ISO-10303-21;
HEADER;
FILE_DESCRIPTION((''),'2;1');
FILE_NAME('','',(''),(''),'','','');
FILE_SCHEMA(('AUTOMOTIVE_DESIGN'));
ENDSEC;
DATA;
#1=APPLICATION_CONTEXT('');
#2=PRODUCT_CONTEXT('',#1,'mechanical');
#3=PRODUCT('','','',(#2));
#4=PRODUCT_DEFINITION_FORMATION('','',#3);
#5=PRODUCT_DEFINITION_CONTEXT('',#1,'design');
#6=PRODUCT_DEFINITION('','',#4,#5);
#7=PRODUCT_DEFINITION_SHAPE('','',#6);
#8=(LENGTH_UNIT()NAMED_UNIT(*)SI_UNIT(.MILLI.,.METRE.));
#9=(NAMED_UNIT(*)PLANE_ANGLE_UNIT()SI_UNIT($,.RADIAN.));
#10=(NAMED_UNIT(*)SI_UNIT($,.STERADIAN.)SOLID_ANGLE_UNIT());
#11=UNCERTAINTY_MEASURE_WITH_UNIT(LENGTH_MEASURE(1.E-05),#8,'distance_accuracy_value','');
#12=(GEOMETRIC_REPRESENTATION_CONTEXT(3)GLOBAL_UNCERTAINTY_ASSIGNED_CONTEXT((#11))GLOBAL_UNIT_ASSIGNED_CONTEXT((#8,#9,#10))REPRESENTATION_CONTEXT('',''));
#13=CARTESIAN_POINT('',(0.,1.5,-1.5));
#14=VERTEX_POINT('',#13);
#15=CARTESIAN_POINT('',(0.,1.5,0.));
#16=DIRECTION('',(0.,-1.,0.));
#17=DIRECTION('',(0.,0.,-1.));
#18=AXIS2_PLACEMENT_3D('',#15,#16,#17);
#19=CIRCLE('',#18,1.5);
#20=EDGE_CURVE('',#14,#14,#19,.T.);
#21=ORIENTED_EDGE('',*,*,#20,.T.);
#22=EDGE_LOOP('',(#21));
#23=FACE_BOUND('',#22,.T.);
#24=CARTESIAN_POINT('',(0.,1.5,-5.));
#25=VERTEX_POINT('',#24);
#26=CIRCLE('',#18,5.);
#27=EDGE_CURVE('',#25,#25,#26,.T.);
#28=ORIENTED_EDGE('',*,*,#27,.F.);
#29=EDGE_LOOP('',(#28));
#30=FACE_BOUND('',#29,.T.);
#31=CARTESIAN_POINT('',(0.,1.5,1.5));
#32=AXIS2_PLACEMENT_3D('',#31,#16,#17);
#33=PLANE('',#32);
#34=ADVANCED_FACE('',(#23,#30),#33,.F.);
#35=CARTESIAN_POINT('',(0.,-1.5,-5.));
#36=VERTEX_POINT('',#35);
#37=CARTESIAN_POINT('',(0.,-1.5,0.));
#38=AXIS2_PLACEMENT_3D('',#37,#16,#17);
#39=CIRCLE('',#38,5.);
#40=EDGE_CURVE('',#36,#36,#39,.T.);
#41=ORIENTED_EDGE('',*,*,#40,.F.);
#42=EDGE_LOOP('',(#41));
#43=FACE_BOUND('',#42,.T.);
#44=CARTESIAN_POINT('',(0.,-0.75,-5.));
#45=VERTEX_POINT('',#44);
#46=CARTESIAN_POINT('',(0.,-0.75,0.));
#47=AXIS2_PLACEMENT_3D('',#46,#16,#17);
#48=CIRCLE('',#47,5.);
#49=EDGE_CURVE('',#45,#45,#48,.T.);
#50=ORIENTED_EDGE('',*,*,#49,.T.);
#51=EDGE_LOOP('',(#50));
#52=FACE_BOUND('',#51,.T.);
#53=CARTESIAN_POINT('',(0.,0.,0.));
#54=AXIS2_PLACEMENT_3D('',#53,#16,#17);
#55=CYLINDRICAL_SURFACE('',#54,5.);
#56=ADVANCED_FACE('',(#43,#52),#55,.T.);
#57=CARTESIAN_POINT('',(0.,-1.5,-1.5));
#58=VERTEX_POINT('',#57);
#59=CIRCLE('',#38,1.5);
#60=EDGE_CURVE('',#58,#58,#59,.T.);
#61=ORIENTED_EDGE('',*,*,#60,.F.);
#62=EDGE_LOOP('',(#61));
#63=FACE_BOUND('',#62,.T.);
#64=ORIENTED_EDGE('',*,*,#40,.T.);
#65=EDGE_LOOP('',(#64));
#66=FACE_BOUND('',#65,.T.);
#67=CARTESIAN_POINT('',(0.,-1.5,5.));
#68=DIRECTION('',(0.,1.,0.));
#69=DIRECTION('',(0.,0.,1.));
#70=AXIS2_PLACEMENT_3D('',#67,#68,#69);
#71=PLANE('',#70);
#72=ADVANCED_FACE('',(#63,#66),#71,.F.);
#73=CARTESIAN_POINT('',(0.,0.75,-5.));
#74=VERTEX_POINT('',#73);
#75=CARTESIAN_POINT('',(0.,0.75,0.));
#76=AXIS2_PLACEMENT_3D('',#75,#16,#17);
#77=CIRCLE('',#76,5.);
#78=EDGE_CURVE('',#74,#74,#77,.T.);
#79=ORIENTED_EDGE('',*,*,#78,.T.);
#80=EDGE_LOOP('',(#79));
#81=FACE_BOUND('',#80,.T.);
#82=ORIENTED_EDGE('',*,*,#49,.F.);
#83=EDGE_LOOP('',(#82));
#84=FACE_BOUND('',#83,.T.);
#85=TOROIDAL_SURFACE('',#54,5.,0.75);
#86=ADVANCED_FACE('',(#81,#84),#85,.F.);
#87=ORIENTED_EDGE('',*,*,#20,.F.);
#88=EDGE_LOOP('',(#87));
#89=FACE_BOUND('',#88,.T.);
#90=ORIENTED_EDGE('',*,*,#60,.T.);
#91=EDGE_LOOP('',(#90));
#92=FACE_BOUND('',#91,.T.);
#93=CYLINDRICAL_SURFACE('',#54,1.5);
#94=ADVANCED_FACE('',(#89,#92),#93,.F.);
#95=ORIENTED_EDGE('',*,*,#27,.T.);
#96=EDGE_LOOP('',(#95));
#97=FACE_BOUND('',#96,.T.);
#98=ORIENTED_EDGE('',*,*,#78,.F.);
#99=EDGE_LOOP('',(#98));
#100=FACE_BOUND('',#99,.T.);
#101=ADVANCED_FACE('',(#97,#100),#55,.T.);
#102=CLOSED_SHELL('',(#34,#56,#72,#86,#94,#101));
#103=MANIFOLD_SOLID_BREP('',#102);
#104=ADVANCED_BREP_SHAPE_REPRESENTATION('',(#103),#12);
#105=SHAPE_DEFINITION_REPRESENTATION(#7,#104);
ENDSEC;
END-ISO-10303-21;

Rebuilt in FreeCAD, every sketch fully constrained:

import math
import FreeCAD as App
import Part
import Sketcher
from FreeCAD import Vector
Q = App.Units.Quantity

doc = App.newDocument("Part")
params = doc.addObject("Spreadsheet::Sheet", "Params")
for row, (alias, value) in enumerate([
    ("sketch1_width", "3 mm"),
    ("sketch1_radius", "0.75 mm"),
    ("sketch1_height", "3.5 mm"),
    ("revolution_angle", "360 deg"),
], start=1):
    params.set(f"A{row}", alias)
    params.set(f"B{row}", "=" + value)
    params.setAlias(f"B{row}", alias)

body = doc.addObject("PartDesign::Body", "Body")

# Sketch on YZ plane
sketch1 = doc.addObject("Sketcher::SketchObject", "Sketch")
body.addObject(sketch1)
sketch1.AttachmentSupport = (doc.YZ_Plane, [""])
sketch1.MapMode = "FlatFace"
sketch1.addGeometry([
    Part.LineSegment(Vector(1.5, 1.5, 0), Vector(1.5, 5, 0)),  # 0
    Part.LineSegment(Vector(1.5, 5, 0), Vector(0.8, 5, 0)),  # 1
    Part.ArcOfCircle(Part.Circle(Vector(0, 5, 0), Vector(0, 0, 1), 0.8), math.radians(180), math.radians(360)),  # 2
    Part.LineSegment(Vector(-0.8, 5, 0), Vector(-1.5, 5, 0)),  # 3
    Part.LineSegment(Vector(-1.5, 5, 0), Vector(-1.5, 1.5, 0)),  # 4
    Part.LineSegment(Vector(-1.5, 1.5, 0), Vector(1.5, 1.5, 0)),  # 5
], False)
sketch1.addConstraint([
    Sketcher.Constraint("Coincident", 0, 2, 1, 1),
    Sketcher.Constraint("Coincident", 1, 2, 2, 2),
    Sketcher.Constraint("Coincident", 2, 1, 3, 1),
    Sketcher.Constraint("Coincident", 3, 2, 4, 1),
    Sketcher.Constraint("Coincident", 4, 2, 5, 1),
    Sketcher.Constraint("Coincident", 5, 2, 0, 1),
    Sketcher.Constraint("Vertical", 0),
    Sketcher.Constraint("Horizontal", 1),
    Sketcher.Constraint("Horizontal", 3),
    Sketcher.Constraint("Vertical", 4),
    Sketcher.Constraint("Horizontal", 5),
    Sketcher.Constraint("Symmetric", 1, 2, 2, 1, -2),
    Sketcher.Constraint("Horizontal", 2, 3, 0, 2),
    Sketcher.Constraint("Equal", 1, 3),
    Sketcher.Constraint("DistanceX", 5, 1, 5, 2, Q("3 mm")),
    Sketcher.Constraint("Radius", 2, Q("0.75 mm")),
    Sketcher.Constraint("DistanceY", 0, 1, 0, 2, Q("3.5 mm")),
    Sketcher.Constraint("DistanceY", -1, 1, 2, 3, Q("5 mm")),
])
sketch1.setExpression("Constraints[14]", "Params.sketch1_width")
sketch1.setExpression("Constraints[15]", "Params.sketch1_radius")
sketch1.setExpression("Constraints[16]", "Params.sketch1_height")
revolution = doc.addObject("PartDesign::Revolution", "Revolution")
body.addObject(revolution)
revolution.Profile = sketch1
revolution.ReferenceAxis = (sketch1, ["H_Axis"])
revolution.setExpression("Angle", "Params.revolution_angle")

doc.recompute()
